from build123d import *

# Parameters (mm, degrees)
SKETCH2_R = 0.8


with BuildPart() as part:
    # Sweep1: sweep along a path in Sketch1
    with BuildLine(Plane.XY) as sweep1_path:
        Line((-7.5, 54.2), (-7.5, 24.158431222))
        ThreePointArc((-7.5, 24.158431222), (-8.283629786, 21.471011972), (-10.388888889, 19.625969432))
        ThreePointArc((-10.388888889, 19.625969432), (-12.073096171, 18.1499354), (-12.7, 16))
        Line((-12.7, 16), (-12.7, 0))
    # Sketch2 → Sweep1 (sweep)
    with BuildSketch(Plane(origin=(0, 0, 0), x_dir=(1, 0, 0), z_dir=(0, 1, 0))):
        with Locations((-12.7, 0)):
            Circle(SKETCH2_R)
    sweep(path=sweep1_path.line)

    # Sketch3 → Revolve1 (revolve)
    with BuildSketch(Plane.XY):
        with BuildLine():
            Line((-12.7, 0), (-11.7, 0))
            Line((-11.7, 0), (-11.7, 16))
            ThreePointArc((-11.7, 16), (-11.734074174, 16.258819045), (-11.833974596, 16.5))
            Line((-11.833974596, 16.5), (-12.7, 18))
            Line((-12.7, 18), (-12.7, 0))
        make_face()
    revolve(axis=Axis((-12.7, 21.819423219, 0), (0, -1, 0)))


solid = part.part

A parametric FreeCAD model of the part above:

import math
import FreeCAD as App
import Part
import Sketcher
from FreeCAD import Vector
Q = App.Units.Quantity

doc = App.newDocument("Part")
body = doc.addObject("PartDesign::Body", "Body")

sketch1 = body.newObject("Sketcher::SketchObject", "Sketch")
sketch1.AttachmentSupport = (doc.getObject("XZ_Plane"), [""])
sketch1.MapMode = "FlatFace"
sketch1.addGeometry(Part.Circle(Vector(-12.7, 0, 0), Vector(0, 0, 1), 0.8), False)
sketch1.addConstraint([
    Sketcher.Constraint("PointOnObject", 0, 3, -1),
    Sketcher.Constraint("Diameter", 0, Q("1.6 mm")),
    Sketcher.Constraint("DistanceX", 0, 3, -1, 1, Q("12.7 mm")),
])

sketch2 = body.newObject("Sketcher::SketchObject", "Sketch001")
sketch2.AttachmentSupport = (doc.getObject("XY_Plane"), [""])
sketch2.MapMode = "FlatFace"
sketch2.addGeometry([
    Part.LineSegment(Vector(-7.5, 54.2, 0), Vector(-7.5, 24.2, 0)),
    Part.ArcOfCircle(Part.Circle(Vector(-12.5, 24.2, 0), Vector(0, 0, 1), 5), math.radians(-65), math.radians(0)),
    Part.ArcOfCircle(Part.Circle(Vector(-8.7, 16, 0), Vector(0, 0, 1), 4), math.radians(115), math.radians(180)),
    Part.LineSegment(Vector(-12.7, 16, 0), Vector(-12.7, 0, 0)),
], False)
sketch2.addConstraint([
    Sketcher.Constraint("Tangent", 0, 2, 1, 2),
    Sketcher.Constraint("Tangent", 1, 1, 2, 1),
    Sketcher.Constraint("Tangent", 2, 2, 3, 1),
    Sketcher.Constraint("Vertical", 0),
    Sketcher.Constraint("Vertical", 3),
    Sketcher.Constraint("PointOnObject", 3, 2, -1),
    Sketcher.Constraint("Radius", 1, Q("5 mm")),
    Sketcher.Constraint("Radius", 2, Q("4 mm")),
    Sketcher.Constraint("DistanceY", 3, 2, 3, 1, Q("16 mm")),
    Sketcher.Constraint("DistanceX", 1, 3, -1, 1, Q("12.5 mm")),
    Sketcher.Constraint("DistanceX", 2, 3, -1, 1, Q("8.7 mm")),
    Sketcher.Constraint("DistanceY", -1, 1, 0, 1, Q("54.2 mm")),
])
doc.recompute()

additivepipe = body.newObject("PartDesign::AdditivePipe", "AdditivePipe")
additivepipe.Profile = sketch1
additivepipe.Spine = (sketch2, ["Edge1", "Edge2", "Edge3", "Edge4"])

sketch3 = body.newObject("Sketcher::SketchObject", "Sketch002")
sketch3.AttachmentSupport = (doc.getObject("XY_Plane"), [""])
sketch3.MapMode = "FlatFace"
sketch3.addGeometry([
    Part.LineSegment(Vector(-12.7, 0, 0), Vector(-11.7, 0, 0)),
    Part.LineSegment(Vector(-11.7, 0, 0), Vector(-11.7, 16, 0)),
    Part.ArcOfCircle(Part.Circle(Vector(-12.7, 16, 0), Vector(0, 0, 1), 1), math.radians(0), math.radians(30)),
    Part.LineSegment(Vector(-11.8, 16.5, 0), Vector(-12.7, 18, 0)),
    Part.LineSegment(Vector(-12.7, 18, 0), Vector(-12.7, 0, 0)),
], False)
sketch3.addGeometry(Part.LineSegment(Vector(-12.7, 18, 0), Vector(-12.7, 0, 0)), True)
sketch3.addConstraint([
    Sketcher.Constraint("Coincident", 0, 2, 1, 1),
    Sketcher.Constraint("Tangent", 1, 2, 2, 1),
    Sketcher.Constraint("Tangent", 2, 2, 3, 1),
    Sketcher.Constraint("Coincident", 3, 2, 4, 1),
    Sketcher.Constraint("Coincident", 4, 2, 0, 1),
    Sketcher.Constraint("Horizontal", 0),
    Sketcher.Constraint("Vertical", 1),
    Sketcher.Constraint("Vertical", 4),
    Sketcher.Constraint("Vertical", 5),
    Sketcher.Constraint("Coincident", 5, 1, 3, 2),
    Sketcher.Constraint("PointOnObject", 0, 2, -1),
    Sketcher.Constraint("PointOnObject", 5, 2, -1),
    Sketcher.Constraint("Vertical", 2, 3, 3, 2),
    Sketcher.Constraint("Radius", 2, Q("1 mm")),
    Sketcher.Constraint("DistanceY", 1, 1, 1, 2, Q("16 mm")),
    Sketcher.Constraint("DistanceY", 4, 2, 4, 1, Q("18 mm")),
    Sketcher.Constraint("DistanceX", 2, 3, -1, 1, Q("12.7 mm")),
])
revolution = body.newObject("PartDesign::Revolution", "Revolution")
revolution.Profile = sketch3
revolution.ReferenceAxis = (sketch3, ["Axis0"])
revolution.Angle = 360

doc.recompute()
